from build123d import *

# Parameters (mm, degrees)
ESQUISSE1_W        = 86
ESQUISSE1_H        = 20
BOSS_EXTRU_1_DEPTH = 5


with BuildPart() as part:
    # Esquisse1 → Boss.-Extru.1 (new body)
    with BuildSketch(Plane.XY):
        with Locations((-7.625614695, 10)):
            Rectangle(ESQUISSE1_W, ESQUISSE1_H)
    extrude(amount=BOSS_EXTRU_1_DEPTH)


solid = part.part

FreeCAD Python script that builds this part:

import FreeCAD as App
import Part
import Sketcher
Q = App.Units.Quantity


def add_polygon(sketch, points):
    """Adds a closed chain of lines whose ends are joined by coincident constraints."""
    first, n = sketch.GeometryCount, len(points)
    for a, b in zip(points, points[1:] + points[:1]):
        sketch.addGeometry(Part.LineSegment(App.Vector(*a, 0), App.Vector(*b, 0)), False)
    for i in range(n):
        sketch.addConstraint(Sketcher.Constraint("Coincident", first + i, 2, first + (i + 1) % n, 1))

doc = App.newDocument("Part")
body = doc.addObject("PartDesign::Body", "Body")

# Sketch on XY plane
sketch1 = doc.addObject("Sketcher::SketchObject", "Sketch")
body.addObject(sketch1)
sketch1.AttachmentSupport = (doc.XY_Plane, [""])
sketch1.MapMode = "FlatFace"
add_polygon(sketch1, [(-50.625615, 20), (-50.625615, 0), (35.374385, 0), (35.374385, 20)])  # lines 0-3
sketch1.addConstraint(Sketcher.Constraint("Vertical", 0))
sketch1.addConstraint(Sketcher.Constraint("Horizontal", 1))
sketch1.addConstraint(Sketcher.Constraint("Vertical", 2))
sketch1.addConstraint(Sketcher.Constraint("Horizontal", 3))
sketch1.addConstraint(Sketcher.Constraint("PointOnObject", 0, 2, -1))
sketch1.addConstraint(Sketcher.Constraint("DistanceX", 1, 1, 1, 2, Q("86 mm")))
sketch1.addConstraint(Sketcher.Constraint("DistanceY", 0, 2, 0, 1, Q("20 mm")))
sketch1.addConstraint(Sketcher.Constraint("DistanceX", 0, 2, -1, 1, Q("50.625615 mm")))
pad1 = doc.addObject("PartDesign::Pad", "Pad")
body.addObject(pad1)
pad1.Profile = sketch1
pad1.Length = 5

doc.recompute()
